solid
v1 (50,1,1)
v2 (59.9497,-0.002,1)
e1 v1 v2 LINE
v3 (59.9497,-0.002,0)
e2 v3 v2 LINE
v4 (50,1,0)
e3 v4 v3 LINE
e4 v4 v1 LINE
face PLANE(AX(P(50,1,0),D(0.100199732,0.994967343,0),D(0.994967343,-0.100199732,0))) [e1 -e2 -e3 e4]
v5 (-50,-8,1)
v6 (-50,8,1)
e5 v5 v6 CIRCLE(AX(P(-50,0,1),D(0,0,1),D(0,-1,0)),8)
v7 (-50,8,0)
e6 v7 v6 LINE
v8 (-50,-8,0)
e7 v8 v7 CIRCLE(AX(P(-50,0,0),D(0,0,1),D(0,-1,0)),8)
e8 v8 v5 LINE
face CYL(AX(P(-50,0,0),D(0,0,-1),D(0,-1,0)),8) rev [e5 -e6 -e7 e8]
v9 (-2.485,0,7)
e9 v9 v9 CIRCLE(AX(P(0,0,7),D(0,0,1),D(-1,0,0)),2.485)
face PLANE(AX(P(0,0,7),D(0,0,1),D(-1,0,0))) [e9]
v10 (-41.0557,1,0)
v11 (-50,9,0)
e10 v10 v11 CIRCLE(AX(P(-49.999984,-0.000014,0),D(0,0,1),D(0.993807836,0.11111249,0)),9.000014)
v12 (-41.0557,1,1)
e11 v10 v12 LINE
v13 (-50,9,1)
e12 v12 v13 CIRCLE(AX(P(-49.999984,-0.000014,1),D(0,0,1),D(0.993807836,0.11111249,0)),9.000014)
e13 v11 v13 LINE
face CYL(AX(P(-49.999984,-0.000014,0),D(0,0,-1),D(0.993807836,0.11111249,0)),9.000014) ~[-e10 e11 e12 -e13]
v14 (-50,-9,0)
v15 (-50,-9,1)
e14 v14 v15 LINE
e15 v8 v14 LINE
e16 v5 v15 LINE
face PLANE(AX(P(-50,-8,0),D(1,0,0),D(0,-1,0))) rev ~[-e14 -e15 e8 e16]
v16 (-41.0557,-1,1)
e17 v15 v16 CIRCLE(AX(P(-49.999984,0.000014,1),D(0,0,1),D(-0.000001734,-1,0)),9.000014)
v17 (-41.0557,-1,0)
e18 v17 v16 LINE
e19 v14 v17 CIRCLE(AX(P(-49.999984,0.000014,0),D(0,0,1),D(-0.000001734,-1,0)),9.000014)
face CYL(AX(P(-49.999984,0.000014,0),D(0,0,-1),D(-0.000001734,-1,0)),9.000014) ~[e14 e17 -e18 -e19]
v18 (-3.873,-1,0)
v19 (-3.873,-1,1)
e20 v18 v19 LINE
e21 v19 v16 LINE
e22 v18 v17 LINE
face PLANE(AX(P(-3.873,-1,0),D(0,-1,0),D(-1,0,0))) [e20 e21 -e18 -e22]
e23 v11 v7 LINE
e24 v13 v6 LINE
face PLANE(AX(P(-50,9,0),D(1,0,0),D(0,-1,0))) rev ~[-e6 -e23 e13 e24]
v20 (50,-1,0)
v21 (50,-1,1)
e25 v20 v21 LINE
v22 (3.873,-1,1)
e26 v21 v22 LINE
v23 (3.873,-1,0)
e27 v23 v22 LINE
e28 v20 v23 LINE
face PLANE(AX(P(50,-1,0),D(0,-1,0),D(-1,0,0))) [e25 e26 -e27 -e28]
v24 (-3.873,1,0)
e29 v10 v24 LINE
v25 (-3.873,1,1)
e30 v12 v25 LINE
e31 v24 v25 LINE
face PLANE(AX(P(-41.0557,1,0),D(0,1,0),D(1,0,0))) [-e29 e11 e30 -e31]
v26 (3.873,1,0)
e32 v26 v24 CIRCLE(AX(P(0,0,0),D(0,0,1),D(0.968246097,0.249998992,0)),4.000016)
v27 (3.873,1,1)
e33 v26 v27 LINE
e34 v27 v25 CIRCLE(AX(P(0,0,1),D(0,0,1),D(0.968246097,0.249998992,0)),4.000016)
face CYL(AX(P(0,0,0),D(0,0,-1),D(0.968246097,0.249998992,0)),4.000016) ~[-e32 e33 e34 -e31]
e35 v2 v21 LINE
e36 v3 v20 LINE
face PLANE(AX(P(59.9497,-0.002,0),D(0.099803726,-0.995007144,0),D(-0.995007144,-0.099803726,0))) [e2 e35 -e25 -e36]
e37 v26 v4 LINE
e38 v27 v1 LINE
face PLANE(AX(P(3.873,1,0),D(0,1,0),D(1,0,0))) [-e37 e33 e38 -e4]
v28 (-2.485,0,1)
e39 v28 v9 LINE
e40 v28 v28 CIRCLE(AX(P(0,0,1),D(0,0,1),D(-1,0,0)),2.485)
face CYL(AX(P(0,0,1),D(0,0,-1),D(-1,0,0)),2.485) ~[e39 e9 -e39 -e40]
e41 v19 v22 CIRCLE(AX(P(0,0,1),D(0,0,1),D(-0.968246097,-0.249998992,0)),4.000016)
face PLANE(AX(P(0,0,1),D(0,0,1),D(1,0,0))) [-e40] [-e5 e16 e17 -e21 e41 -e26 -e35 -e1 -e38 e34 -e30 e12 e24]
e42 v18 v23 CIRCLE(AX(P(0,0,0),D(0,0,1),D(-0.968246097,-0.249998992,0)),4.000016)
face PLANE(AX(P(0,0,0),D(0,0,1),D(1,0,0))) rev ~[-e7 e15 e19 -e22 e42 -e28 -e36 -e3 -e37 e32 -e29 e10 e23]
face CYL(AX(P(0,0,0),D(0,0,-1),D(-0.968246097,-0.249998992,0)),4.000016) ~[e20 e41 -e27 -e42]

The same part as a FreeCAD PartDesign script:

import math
import FreeCAD as App
import Part
import Sketcher

V = App.Vector

doc = App.newDocument("Part")
body = doc.addObject("PartDesign::Body", "Body")

# Sketch on XY plane
sketch1 = body.newObject("Sketcher::SketchObject", "Sketch")
sketch1.AttachmentSupport = (doc.getObject("XY_Plane"), [""])
sketch1.MapMode = "FlatFace"
sketch1.addGeometry(Part.ArcOfCircle(Part.Circle(V(-50, 0, 0), V(0, 0, 1), 8), math.radians(-90), math.radians(90)), False)
sketch1.addGeometry(Part.LineSegment(V(-50, -8, 0), V(-50, -9, 0)), False)
sketch1.addGeometry(Part.ArcOfCircle(Part.Circle(V(-50, 0, 0), V(0, 0, 1), 9.000028), math.radians(-90), math.radians(-6.37935)), False)
sketch1.addGeometry(Part.LineSegment(V(-41.0557, -1, 0), V(-3.873, -1, 0)), False)
sketch1.addGeometry(Part.ArcOfCircle(Part.Circle(V(0, 0, 0), V(0, 0, 1), 4.000016), math.radians(-165.522547), math.radians(-14.477453)), False)
sketch1.addGeometry(Part.LineSegment(V(3.873, -1, 0), V(50, -1, 0)), False)
sketch1.addGeometry(Part.LineSegment(V(50, -1, 0), V(59.9497, -0.002, 0)), False)
sketch1.addGeometry(Part.LineSegment(V(59.9497, -0.002, 0), V(50, 1, 0)), False)
sketch1.addGeometry(Part.LineSegment(V(50, 1, 0), V(3.873, 1, 0)), False)
sketch1.addGeometry(Part.ArcOfCircle(Part.Circle(V(0, 0, 0), V(0, 0, 1), 4.000016), math.radians(14.477453), math.radians(165.522547)), False)
sketch1.addGeometry(Part.LineSegment(V(-3.873, 1, 0), V(-41.0557, 1, 0)), False)
sketch1.addGeometry(Part.ArcOfCircle(Part.Circle(V(-50, 0, 0), V(0, 0, 1), 9), math.radians(6.37935), math.radians(90)), False)
sketch1.addGeometry(Part.LineSegment(V(-50, 9, 0), V(-50, 8, 0)), False)
sketch1.addConstraint(Sketcher.Constraint("Coincident", 0, 1, 1, 1))
sketch1.addConstraint(Sketcher.Constraint("Coincident", 1, 2, 2, 1))
sketch1.addConstraint(Sketcher.Constraint("Coincident", 2, 2, 3, 1))
sketch1.addConstraint(Sketcher.Constraint("Coincident", 3, 2, 4, 1))
sketch1.addConstraint(Sketcher.Constraint("Coincident", 4, 2, 5, 1))
sketch1.addConstraint(Sketcher.Constraint("Coincident", 5, 2, 6, 1))
sketch1.addConstraint(Sketcher.Constraint("Coincident", 6, 2, 7, 1))
sketch1.addConstraint(Sketcher.Constraint("Coincident", 7, 2, 8, 1))
sketch1.addConstraint(Sketcher.Constraint("Coincident", 8, 2, 9, 1))
sketch1.addConstraint(Sketcher.Constraint("Coincident", 9, 2, 10, 1))
sketch1.addConstraint(Sketcher.Constraint("Coincident", 10, 2, 11, 1))
sketch1.addConstraint(Sketcher.Constraint("Coincident", 11, 2, 12, 1))
sketch1.addConstraint(Sketcher.Constraint("Coincident", 12, 2, 0, 2))
sketch1.addConstraint(Sketcher.Constraint("Vertical", 1))
sketch1.addConstraint(Sketcher.Constraint("Horizontal", 3))
sketch1.addConstraint(Sketcher.Constraint("Horizontal", 5))
sketch1.addConstraint(Sketcher.Constraint("Horizontal", 8))
sketch1.addConstraint(Sketcher.Constraint("Horizontal", 10))
sketch1.addConstraint(Sketcher.Constraint("Vertical", 12))
sketch1.addConstraint(Sketcher.Constraint("Coincident", 4, 3, -1, 1))
sketch1.addConstraint(Sketcher.Constraint("Coincident", 9, 3, -1, 1))
sketch1.addConstraint(Sketcher.Constraint("Coincident", 2, 3, 0, 3))
sketch1.addConstraint(Sketcher.Constraint("Coincident", 11, 3, 0, 3))
sketch1.addConstraint(Sketcher.Constraint("Equal", 4, 9))
sketch1.addConstraint(Sketcher.Constraint("Equal", 2, 11))
sketch1.addConstraint(Sketcher.Constraint("Symmetric", 5, 2, 7, 2, -1))
sketch1.addConstraint(Sketcher.Constraint("Symmetric", 2, 2, 10, 2, -1))
sketch1.addConstraint(Sketcher.Constraint("Horizontal", 3, 2, 4, 2))
sketch1.addConstraint(Sketcher.Constraint("Vertical", 11, 3, 0, 1))
sketch1.addConstraint(Sketcher.Constraint("Vertical", 1, 2, 11, 2))
sketch1.addConstraint(Sketcher.Constraint("Radius", 0, 8.0))
sketch1.addConstraint(Sketcher.Constraint("Radius", 4, 4.0))
sketch1.addConstraint(Sketcher.Constraint("Distance", 7, 10.0))
sketch1.addConstraint(Sketcher.Constraint("Radius", 2, 9.0))
sketch1.addConstraint(Sketcher.Constraint("DistanceY", 1, 2, 2, 2, 8.0))
sketch1.addConstraint(Sketcher.Constraint("DistanceX", 0, 3, -1, 1, 50.0))
sketch1.addConstraint(Sketcher.Constraint("DistanceX", -1, 1, 5, 2, 50.0))
sketch1.addConstraint(Sketcher.Constraint("Distance", 6, 9.9996))
pad1 = body.newObject("PartDesign::Pad", "Pad")
pad1.Profile = sketch1
pad1.Length = 1

# Sketch on XY plane
sketch2 = body.newObject("Sketcher::SketchObject", "Sketch001")
sketch2.AttachmentSupport = (doc.getObject("XY_Plane"), [""])
sketch2.MapMode = "FlatFace"
sketch2.AttachmentOffset = App.Placement(V(0, 0, 1), App.Rotation())
sketch2.addGeometry(Part.Circle(V(0, 0, 0), V(0, 0, 1), 2.485), False)
sketch2.addConstraint(Sketcher.Constraint("Coincident", 0, 3, -1, 1))
sketch2.addConstraint(Sketcher.Constraint("Diameter", 0, 4.97))
pad2 = body.newObject("PartDesign::Pad", "Pad001")
pad2.Profile = sketch2
pad2.Length = 6

doc.recompute()
